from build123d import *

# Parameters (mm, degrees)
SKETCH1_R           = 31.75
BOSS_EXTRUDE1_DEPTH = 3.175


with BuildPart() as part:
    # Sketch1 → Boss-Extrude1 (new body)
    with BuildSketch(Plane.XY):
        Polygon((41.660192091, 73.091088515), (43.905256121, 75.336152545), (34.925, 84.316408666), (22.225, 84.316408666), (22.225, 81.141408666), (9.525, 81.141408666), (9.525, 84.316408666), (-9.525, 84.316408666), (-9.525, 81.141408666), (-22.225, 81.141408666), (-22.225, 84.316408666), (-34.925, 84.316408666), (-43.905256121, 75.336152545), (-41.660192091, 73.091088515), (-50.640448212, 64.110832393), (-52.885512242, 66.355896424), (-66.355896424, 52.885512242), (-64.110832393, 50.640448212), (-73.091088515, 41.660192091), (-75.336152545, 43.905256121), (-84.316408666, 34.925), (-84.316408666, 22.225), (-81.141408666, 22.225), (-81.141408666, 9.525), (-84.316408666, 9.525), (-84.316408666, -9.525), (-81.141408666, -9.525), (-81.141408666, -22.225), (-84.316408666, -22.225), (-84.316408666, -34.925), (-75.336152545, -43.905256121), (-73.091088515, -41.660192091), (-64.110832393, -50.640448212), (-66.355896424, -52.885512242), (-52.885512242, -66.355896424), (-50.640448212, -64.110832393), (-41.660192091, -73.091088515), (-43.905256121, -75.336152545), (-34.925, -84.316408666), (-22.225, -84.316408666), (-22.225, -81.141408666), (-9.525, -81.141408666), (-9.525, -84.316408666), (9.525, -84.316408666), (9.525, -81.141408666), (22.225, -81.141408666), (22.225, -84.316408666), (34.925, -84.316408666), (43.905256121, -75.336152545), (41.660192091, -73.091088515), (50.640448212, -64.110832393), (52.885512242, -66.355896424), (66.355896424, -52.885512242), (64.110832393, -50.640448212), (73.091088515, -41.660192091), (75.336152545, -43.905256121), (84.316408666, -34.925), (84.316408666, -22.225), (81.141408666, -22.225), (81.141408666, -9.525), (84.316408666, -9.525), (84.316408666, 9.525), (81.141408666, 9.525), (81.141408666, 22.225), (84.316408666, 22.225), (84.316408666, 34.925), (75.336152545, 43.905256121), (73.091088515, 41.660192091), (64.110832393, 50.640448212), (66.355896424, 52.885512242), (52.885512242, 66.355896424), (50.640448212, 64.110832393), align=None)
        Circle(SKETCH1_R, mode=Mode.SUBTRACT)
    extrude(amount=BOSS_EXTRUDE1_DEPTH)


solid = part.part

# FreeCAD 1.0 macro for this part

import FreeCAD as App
import Part
import Sketcher
Q = App.Units.Quantity

doc = App.newDocument("Part")
body = doc.addObject("PartDesign::Body", "Body")

# Sketch on XY plane
sketch1 = body.newObject("Sketcher::SketchObject", "Sketch")
sketch1.AttachmentSupport = (doc.getObject("XY_Plane"), [""])
sketch1.MapMode = "FlatFace"
sketch1.addGeometry([
    Part.LineSegment(App.Vector(41.7, 73.1, 0), App.Vector(43.9, 75.3, 0)),  # 0
    Part.LineSegment(App.Vector(43.9, 75.3, 0), App.Vector(34.9, 84.3, 0)),  # 1
    Part.LineSegment(App.Vector(34.9, 84.3, 0), App.Vector(22.2, 84.3, 0)),  # 2
    Part.LineSegment(App.Vector(22.2, 84.3, 0), App.Vector(22.2, 81.1, 0)),  # 3
    Part.LineSegment(App.Vector(22.2, 81.1, 0), App.Vector(9.5, 81.1, 0)),  # 4
    Part.LineSegment(App.Vector(9.5, 81.1, 0), App.Vector(9.5, 84.3, 0)),  # 5
    Part.LineSegment(App.Vector(9.5, 84.3, 0), App.Vector(-9.5, 84.3, 0)),  # 6
    Part.LineSegment(App.Vector(-9.5, 84.3, 0), App.Vector(-9.5, 81.1, 0)),  # 7
    Part.LineSegment(App.Vector(-9.5, 81.1, 0), App.Vector(-22.2, 81.1, 0)),  # 8
    Part.LineSegment(App.Vector(-22.2, 81.1, 0), App.Vector(-22.2, 84.3, 0)),  # 9
    Part.LineSegment(App.Vector(-22.2, 84.3, 0), App.Vector(-34.9, 84.3, 0)),  # 10
    Part.LineSegment(App.Vector(-34.9, 84.3, 0), App.Vector(-43.9, 75.3, 0)),  # 11
    Part.LineSegment(App.Vector(-43.9, 75.3, 0), App.Vector(-41.7, 73.1, 0)),  # 12
    Part.LineSegment(App.Vector(-41.7, 73.1, 0), App.Vector(-50.6, 64.1, 0)),  # 13
    Part.LineSegment(App.Vector(-50.6, 64.1, 0), App.Vector(-52.9, 66.4, 0)),  # 14
    Part.LineSegment(App.Vector(-52.9, 66.4, 0), App.Vector(-66.4, 52.9, 0)),  # 15
    Part.LineSegment(App.Vector(-66.4, 52.9, 0), App.Vector(-64.1, 50.6, 0)),  # 16
    Part.LineSegment(App.Vector(-64.1, 50.6, 0), App.Vector(-73.1, 41.7, 0)),  # 17
    Part.LineSegment(App.Vector(-73.1, 41.7, 0), App.Vector(-75.3, 43.9, 0)),  # 18
    Part.LineSegment(App.Vector(-75.3, 43.9, 0), App.Vector(-84.3, 34.9, 0)),  # 19
    Part.LineSegment(App.Vector(-84.3, 34.9, 0), App.Vector(-84.3, 22.2, 0)),  # 20
    Part.LineSegment(App.Vector(-84.3, 22.2, 0), App.Vector(-81.1, 22.2, 0)),  # 21
    Part.LineSegment(App.Vector(-81.1, 22.2, 0), App.Vector(-81.1, 9.5, 0)),  # 22
    Part.LineSegment(App.Vector(-81.1, 9.5, 0), App.Vector(-84.3, 9.5, 0)),  # 23
    Part.LineSegment(App.Vector(-84.3, 9.5, 0), App.Vector(-84.3, -9.5, 0)),  # 24
    Part.LineSegment(App.Vector(-84.3, -9.5, 0), App.Vector(-81.1, -9.5, 0)),  # 25
    Part.LineSegment(App.Vector(-81.1, -9.5, 0), App.Vector(-81.1, -22.2, 0)),  # 26
    Part.LineSegment(App.Vector(-81.1, -22.2, 0), App.Vector(-84.3, -22.2, 0)),  # 27
    Part.LineSegment(App.Vector(-84.3, -22.2, 0), App.Vector(-84.3, -34.9, 0)),  # 28
    Part.LineSegment(App.Vector(-84.3, -34.9, 0), App.Vector(-75.3, -43.9, 0)),  # 29
    Part.LineSegment(App.Vector(-75.3, -43.9, 0), App.Vector(-73.1, -41.7, 0)),  # 30
    Part.LineSegment(App.Vector(-73.1, -41.7, 0), App.Vector(-64.1, -50.6, 0)),  # 31
    Part.LineSegment(App.Vector(-64.1, -50.6, 0), App.Vector(-66.4, -52.9, 0)),  # 32
    Part.LineSegment(App.Vector(-66.4, -52.9, 0), App.Vector(-52.9, -66.4, 0)),  # 33
    Part.LineSegment(App.Vector(-52.9, -66.4, 0), App.Vector(-50.6, -64.1, 0)),  # 34
    Part.LineSegment(App.Vector(-50.6, -64.1, 0), App.Vector(-41.7, -73.1, 0)),  # 35
    Part.LineSegment(App.Vector(-41.7, -73.1, 0), App.Vector(-43.9, -75.3, 0)),  # 36
    Part.LineSegment(App.Vector(-43.9, -75.3, 0), App.Vector(-34.9, -84.3, 0)),  # 37
    Part.LineSegment(App.Vector(-34.9, -84.3, 0), App.Vector(-22.2, -84.3, 0)),  # 38
    Part.LineSegment(App.Vector(-22.2, -84.3, 0), App.Vector(-22.2, -81.1, 0)),  # 39
    Part.LineSegment(App.Vector(-22.2, -81.1, 0), App.Vector(-9.5, -81.1, 0)),  # 40
    Part.LineSegment(App.Vector(-9.5, -81.1, 0), App.Vector(-9.5, -84.3, 0)),  # 41
    Part.LineSegment(App.Vector(-9.5, -84.3, 0), App.Vector(9.5, -84.3, 0)),  # 42
    Part.LineSegment(App.Vector(9.5, -84.3, 0), App.Vector(9.5, -81.1, 0)),  # 43
    Part.LineSegment(App.Vector(9.5, -81.1, 0), App.Vector(22.2, -81.1, 0)),  # 44
    Part.LineSegment(App.Vector(22.2, -81.1, 0), App.Vector(22.2, -84.3, 0)),  # 45
    Part.LineSegment(App.Vector(22.2, -84.3, 0), App.Vector(34.9, -84.3, 0)),  # 46
    Part.LineSegment(App.Vector(34.9, -84.3, 0), App.Vector(43.9, -75.3, 0)),  # 47
    Part.LineSegment(App.Vector(43.9, -75.3, 0), App.Vector(41.7, -73.1, 0)),  # 48
    Part.LineSegment(App.Vector(41.7, -73.1, 0), App.Vector(50.6, -64.1, 0)),  # 49
    Part.LineSegment(App.Vector(50.6, -64.1, 0), App.Vector(52.9, -66.4, 0)),  # 50
    Part.LineSegment(App.Vector(52.9, -66.4, 0), App.Vector(66.4, -52.9, 0)),  # 51
    Part.LineSegment(App.Vector(66.4, -52.9, 0), App.Vector(64.1, -50.6, 0)),  # 52
    Part.LineSegment(App.Vector(64.1, -50.6, 0), App.Vector(73.1, -41.7, 0)),  # 53
    Part.LineSegment(App.Vector(73.1, -41.7, 0), App.Vector(75.3, -43.9, 0)),  # 54
    Part.LineSegment(App.Vector(75.3, -43.9, 0), App.Vector(84.3, -34.9, 0)),  # 55
    Part.LineSegment(App.Vector(84.3, -34.9, 0), App.Vector(84.3, -22.2, 0)),  # 56
    Part.LineSegment(App.Vector(84.3, -22.2, 0), App.Vector(81.1, -22.2, 0)),  # 57
    Part.LineSegment(App.Vector(81.1, -22.2, 0), App.Vector(81.1, -9.5, 0)),  # 58
    Part.LineSegment(App.Vector(81.1, -9.5, 0), App.Vector(84.3, -9.5, 0)),  # 59
    Part.LineSegment(App.Vector(84.3, -9.5, 0), App.Vector(84.3, 9.5, 0)),  # 60
    Part.LineSegment(App.Vector(84.3, 9.5, 0), App.Vector(81.1, 9.5, 0)),  # 61
    Part.LineSegment(App.Vector(81.1, 9.5, 0), App.Vector(81.1, 22.2, 0)),  # 62
    Part.LineSegment(App.Vector(81.1, 22.2, 0), App.Vector(84.3, 22.2, 0)),  # 63
    Part.LineSegment(App.Vector(84.3, 22.2, 0), App.Vector(84.3, 34.9, 0)),  # 64
    Part.LineSegment(App.Vector(84.3, 34.9, 0), App.Vector(75.3, 43.9, 0)),  # 65
    Part.LineSegment(App.Vector(75.3, 43.9, 0), App.Vector(73.1, 41.7, 0)),  # 66
    Part.LineSegment(App.Vector(73.1, 41.7, 0), App.Vector(64.1, 50.6, 0)),  # 67
    Part.LineSegment(App.Vector(64.1, 50.6, 0), App.Vector(66.4, 52.9, 0)),  # 68
    Part.LineSegment(App.Vector(66.4, 52.9, 0), App.Vector(52.9, 66.4, 0)),  # 69
    Part.LineSegment(App.Vector(52.9, 66.4, 0), App.Vector(50.6, 64.1, 0)),  # 70
    Part.LineSegment(App.Vector(50.6, 64.1, 0), App.Vector(41.7, 73.1, 0)),  # 71
    Part.Circle(App.Vector(0, 0, 0), App.Vector(0, 0, 1), 31.8),  # 72
], False)
sketch1.addConstraint([
    Sketcher.Constraint("Coincident", 0, 2, 1, 1),
    Sketcher.Constraint("Coincident", 1, 2, 2, 1),
    Sketcher.Constraint("Coincident", 2, 2, 3, 1),
    Sketcher.Constraint("Coincident", 3, 2, 4, 1),
    Sketcher.Constraint("Coincident", 4, 2, 5, 1),
    Sketcher.Constraint("Coincident", 5, 2, 6, 1),
    Sketcher.Constraint("Coincident", 6, 2, 7, 1),
    Sketcher.Constraint("Coincident", 7, 2, 8, 1),
    Sketcher.Constraint("Coincident", 8, 2, 9, 1),
    Sketcher.Constraint("Coincident", 9, 2, 10, 1),
    Sketcher.Constraint("Coincident", 10, 2, 11, 1),
    Sketcher.Constraint("Coincident", 11, 2, 12, 1),
    Sketcher.Constraint("Coincident", 12, 2, 13, 1),
    Sketcher.Constraint("Coincident", 13, 2, 14, 1),
    Sketcher.Constraint("Coincident", 14, 2, 15, 1),
    Sketcher.Constraint("Coincident", 15, 2, 16, 1),
    Sketcher.Constraint("Coincident", 16, 2, 17, 1),
    Sketcher.Constraint("Coincident", 17, 2, 18, 1),
    Sketcher.Constraint("Coincident", 18, 2, 19, 1),
    Sketcher.Constraint("Coincident", 19, 2, 20, 1),
    Sketcher.Constraint("Coincident", 20, 2, 21, 1),
    Sketcher.Constraint("Coincident", 21, 2, 22, 1),
    Sketcher.Constraint("Coincident", 22, 2, 23, 1),
    Sketcher.Constraint("Coincident", 23, 2, 24, 1),
    Sketcher.Constraint("Coincident", 24, 2, 25, 1),
    Sketcher.Constraint("Coincident", 25, 2, 26, 1),
    Sketcher.Constraint("Coincident", 26, 2, 27, 1),
    Sketcher.Constraint("Coincident", 27, 2, 28, 1),
    Sketcher.Constraint("Coincident", 28, 2, 29, 1),
    Sketcher.Constraint("Coincident", 29, 2, 30, 1),
    Sketcher.Constraint("Coincident", 30, 2, 31, 1),
    Sketcher.Constraint("Coincident", 31, 2, 32, 1),
    Sketcher.Constraint("Coincident", 32, 2, 33, 1),
    Sketcher.Constraint("Coincident", 33, 2, 34, 1),
    Sketcher.Constraint("Coincident", 34, 2, 35, 1),
    Sketcher.Constraint("Coincident", 35, 2, 36, 1),
    Sketcher.Constraint("Coincident", 36, 2, 37, 1),
    Sketcher.Constraint("Coincident", 37, 2, 38, 1),
    Sketcher.Constraint("Coincident", 38, 2, 39, 1),
    Sketcher.Constraint("Coincident", 39, 2, 40, 1),
    Sketcher.Constraint("Coincident", 40, 2, 41, 1),
    Sketcher.Constraint("Coincident", 41, 2, 42, 1),
    Sketcher.Constraint("Coincident", 42, 2, 43, 1),
    Sketcher.Constraint("Coincident", 43, 2, 44, 1),
    Sketcher.Constraint("Coincident", 44, 2, 45, 1),
    Sketcher.Constraint("Coincident", 45, 2, 46, 1),
    Sketcher.Constraint("Coincident", 46, 2, 47, 1),
    Sketcher.Constraint("Coincident", 47, 2, 48, 1),
    Sketcher.Constraint("Coincident", 48, 2, 49, 1),
    Sketcher.Constraint("Coincident", 49, 2, 50, 1),
    Sketcher.Constraint("Coincident", 50, 2, 51, 1),
    Sketcher.Constraint("Coincident", 51, 2, 52, 1),
    Sketcher.Constraint("Coincident", 52, 2, 53, 1),
    Sketcher.Constraint("Coincident", 53, 2, 54, 1),
    Sketcher.Constraint("Coincident", 54, 2, 55, 1),
    Sketcher.Constraint("Coincident", 55, 2, 56, 1),
    Sketcher.Constraint("Coincident", 56, 2, 57, 1),
    Sketcher.Constraint("Coincident", 57, 2, 58, 1),
    Sketcher.Constraint("Coincident", 58, 2, 59, 1),
    Sketcher.Constraint("Coincident", 59, 2, 60, 1),
    Sketcher.Constraint("Coincident", 60, 2, 61, 1),
    Sketcher.Constraint("Coincident", 61, 2, 62, 1),
    Sketcher.Constraint("Coincident", 62, 2, 63, 1),
    Sketcher.Constraint("Coincident", 63, 2, 64, 1),
    Sketcher.Constraint("Coincident", 64, 2, 65, 1),
    Sketcher.Constraint("Coincident", 65, 2, 66, 1),
    Sketcher.Constraint("Coincident", 66, 2, 67, 1),
    Sketcher.Constraint("Coincident", 67, 2, 68, 1),
    Sketcher.Constraint("Coincident", 68, 2, 69, 1),
    Sketcher.Constraint("Coincident", 69, 2, 70, 1),
    Sketcher.Constraint("Coincident", 70, 2, 71, 1),
    Sketcher.Constraint("Coincident", 71, 2, 0, 1),
    Sketcher.Constraint("Horizontal", 2),
    Sketcher.Constraint("Vertical", 3),
    Sketcher.Constraint("Horizontal", 4),
    Sketcher.Constraint("Vertical", 5),
    Sketcher.Constraint("Horizontal", 6),
    Sketcher.Constraint("Vertical", 7),
    Sketcher.Constraint("Horizontal", 8),
    Sketcher.Constraint("Vertical", 9),
    Sketcher.Constraint("Horizontal", 10),
    Sketcher.Constraint("Vertical", 20),
    Sketcher.Constraint("Horizontal", 21),
    Sketcher.Constraint("Vertical", 22),
    Sketcher.Constraint("Horizontal", 23),
    Sketcher.Constraint("Vertical", 24),
    Sketcher.Constraint("Horizontal", 25),
    Sketcher.Constraint("Vertical", 26),
    Sketcher.Constraint("Horizontal", 27),
    Sketcher.Constraint("Vertical", 28),
    Sketcher.Constraint("Horizontal", 38),
    Sketcher.Constraint("Vertical", 39),
    Sketcher.Constraint("Horizontal", 40),
    Sketcher.Constraint("Vertical", 41),
    Sketcher.Constraint("Horizontal", 42),
    Sketcher.Constraint("Vertical", 43),
    Sketcher.Constraint("Horizontal", 44),
    Sketcher.Constraint("Vertical", 45),
    Sketcher.Constraint("Horizontal", 46),
    Sketcher.Constraint("Vertical", 56),
    Sketcher.Constraint("Horizontal", 57),
    Sketcher.Constraint("Vertical", 58),
    Sketcher.Constraint("Horizontal", 59),
    Sketcher.Constraint("Vertical", 60),
    Sketcher.Constraint("Horizontal", 61),
    Sketcher.Constraint("Vertical", 62),
    Sketcher.Constraint("Horizontal", 63),
    Sketcher.Constraint("Vertical", 64),
    Sketcher.Constraint("Coincident", 72, 3, -1, 1),
    Sketcher.Constraint("Symmetric", 0, 2, 36, 2, -1, 1),
    Sketcher.Constraint("Symmetric", 1, 2, 37, 2, -1, 1),
    Sketcher.Constraint("Symmetric", 3, 2, 39, 2, -1, 1),
    Sketcher.Constraint("Symmetric", 5, 2, 41, 2, -1, 1),
    Sketcher.Constraint("Symmetric", 7, 2, 43, 2, -1, 1),
    Sketcher.Constraint("Symmetric", 9, 2, 45, 2, -1, 1),
    Sketcher.Constraint("Symmetric", 11, 2, 47, 2, -1, 1),
    Sketcher.Constraint("Symmetric", 12, 2, 48, 2, -1, 1),
    Sketcher.Constraint("Symmetric", 13, 2, 49, 2, -1, 1),
    Sketcher.Constraint("Symmetric", 14, 2, 50, 2, -1, 1),
    Sketcher.Constraint("Symmetric", 15, 2, 51, 2, -1, 1),
    Sketcher.Constraint("Symmetric", 16, 2, 52, 2, -1, 1),
    Sketcher.Constraint("Symmetric", 17, 2, 53, 2, -1, 1),
    Sketcher.Constraint("Symmetric", 18, 2, 54, 2, -1, 1),
    Sketcher.Constraint("Symmetric", 19, 2, 55, 2, -1, 1),
    Sketcher.Constraint("Symmetric", 21, 2, 57, 2, -1, 1),
    Sketcher.Constraint("Symmetric", 23, 2, 59, 2, -1, 1),
    Sketcher.Constraint("Symmetric", 25, 2, 61, 2, -1, 1),
    Sketcher.Constraint("Symmetric", 27, 2, 63, 2, -1, 1),
    Sketcher.Constraint("Symmetric", 29, 2, 65, 2, -1, 1),
    Sketcher.Constraint("Symmetric", 30, 2, 66, 2, -1, 1),
    Sketcher.Constraint("Symmetric", 31, 2, 67, 2, -1, 1),
    Sketcher.Constraint("Symmetric", 32, 2, 68, 2, -1, 1),
    Sketcher.Constraint("Symmetric", 33, 2, 69, 2, -1, 1),
    Sketcher.Constraint("Symmetric", 34, 2, 70, 2, -1, 1),
    Sketcher.Constraint("Symmetric", 35, 2, 71, 2, -1, 1),
    Sketcher.Constraint("Symmetric", 4, 2, 7, 2, -2),
    Sketcher.Constraint("Symmetric", 2, 2, 9, 2, -2),
    Sketcher.Constraint("Symmetric", 0, 2, 11, 2, -2),
    Sketcher.Constraint("Symmetric", 35, 2, 48, 2, -2),
    Sketcher.Constraint("Symmetric", 34, 2, 49, 2, -2),
    Sketcher.Constraint("Symmetric", 33, 2, 50, 2, -2),
    Sketcher.Constraint("Symmetric", 32, 2, 51, 2, -2),
    Sketcher.Constraint("Symmetric", 31, 2, 52, 2, -2),
    Sketcher.Constraint("Symmetric", 30, 2, 53, 2, -2),
    Sketcher.Constraint("Symmetric", 29, 2, 54, 2, -2),
    Sketcher.Constraint("Symmetric", 28, 2, 55, 2, -2),
    Sketcher.Constraint("Symmetric", 26, 2, 57, 2, -2),
    Sketcher.Constraint("Perpendicular", 0, 1),
    Sketcher.Constraint("Perpendicular", 1, 11),
    Sketcher.Constraint("Perpendicular", 11, 12),
    Sketcher.Constraint("Perpendicular", 12, 13),
    Sketcher.Constraint("Perpendicular", 13, 14),
    Sketcher.Constraint("Perpendicular", 14, 15),
    Sketcher.Constraint("Perpendicular", 15, 16),
    Sketcher.Constraint("Perpendicular", 16, 17),
    Sketcher.Constraint("Perpendicular", 17, 18),
    Sketcher.Constraint("Perpendicular", 18, 19),
    Sketcher.Constraint("Perpendicular", 37, 47),
    Sketcher.Constraint("Perpendicular", 55, 65),
    Sketcher.Constraint("Horizontal", 2, 2, 5, 2),
    Sketcher.Constraint("Horizontal", 25, 2, 58, 2),
    Sketcher.Constraint("Vertical", 20, 2, 23, 2),
    Sketcher.Constraint("Equal", 2, 4),
    Sketcher.Constraint("Equal", 63, 3),
    Sketcher.Constraint("Equal", 46, 20),
    Sketcher.Constraint("Equal", 20, 22),
    Sketcher.Constraint("Equal", 42, 24),
    Sketcher.Constraint("Equal", 11, 13),
    Sketcher.Constraint("Equal", 12, 14),
    Sketcher.Constraint("Equal", 14, 16),
    Sketcher.Constraint("Equal", 13, 17),
    Sketcher.Constraint("Equal", 16, 18),
    Sketcher.Constraint("Equal", 17, 19),
    Sketcher.Constraint("Diameter", 72, Q("2.5 in")),
    Sketcher.Constraint("DistanceX", 2, 2, 2, 1, Q("0.5 in")),
    Sketcher.Constraint("Distance", 1, Q("0.5 in")),
    Sketcher.Constraint("DistanceX", 6, 2, 6, 1, Q("0.75 in")),
    Sketcher.Constraint("Distance", 15, Q("0.75 in")),
    Sketcher.Constraint("DistanceX", 21, 1, 21, 2, Q("0.125 in")),
    Sketcher.Constraint("Distance", 0, Q("0.125 in")),
])
pad1 = body.newObject("PartDesign::Pad", "Pad")
pad1.Profile = sketch1
pad1.Length = Q("0.125 in")

doc.recompute()
